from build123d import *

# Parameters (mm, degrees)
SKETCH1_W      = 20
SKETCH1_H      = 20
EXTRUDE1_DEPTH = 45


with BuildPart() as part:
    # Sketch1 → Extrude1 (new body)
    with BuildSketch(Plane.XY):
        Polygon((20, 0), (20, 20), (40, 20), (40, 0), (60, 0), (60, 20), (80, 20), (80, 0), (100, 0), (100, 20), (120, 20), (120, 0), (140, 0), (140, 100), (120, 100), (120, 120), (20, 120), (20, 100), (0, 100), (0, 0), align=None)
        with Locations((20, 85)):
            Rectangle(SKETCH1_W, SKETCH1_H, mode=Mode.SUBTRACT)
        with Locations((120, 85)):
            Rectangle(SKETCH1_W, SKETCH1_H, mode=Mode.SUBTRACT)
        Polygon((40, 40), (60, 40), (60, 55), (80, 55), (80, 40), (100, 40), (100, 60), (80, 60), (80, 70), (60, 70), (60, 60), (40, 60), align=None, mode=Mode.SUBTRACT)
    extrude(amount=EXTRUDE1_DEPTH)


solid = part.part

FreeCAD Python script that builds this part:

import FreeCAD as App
import Part
import Sketcher


def add_polygon(sketch, points):
    """Adds a closed chain of lines whose ends are joined by coincident constraints."""
    first, n = sketch.GeometryCount, len(points)
    for a, b in zip(points, points[1:] + points[:1]):
        sketch.addGeometry(Part.LineSegment(App.Vector(*a, 0), App.Vector(*b, 0)), False)
    for i in range(n):
        sketch.addConstraint(Sketcher.Constraint("Coincident", first + i, 2, first + (i + 1) % n, 1))

doc = App.newDocument("Part")
body = doc.addObject("PartDesign::Body", "Body")

sketch1 = body.newObject("Sketcher::SketchObject", "Sketch")
sketch1.AttachmentSupport = (doc.getObject("XY_Plane"), [""])
sketch1.MapMode = "FlatFace"
add_polygon(sketch1, [(20, 0), (20, 20), (40, 20), (40, 0), (60, 0), (60, 20), (80, 20), (80, 0), (100, 0), (100, 20), (120, 20), (120, 0), (140, 0), (140, 100), (120, 100), (120, 120), (20, 120), (20, 100), (0, 100), (0, 0)])
add_polygon(sketch1, [(60, 40), (40, 40), (40, 60), (60, 60), (60, 70), (80, 70), (80, 60), (100, 60), (100, 40), (80, 40), (80, 55), (60, 55)])
add_polygon(sketch1, [(30, 75), (10, 75), (10, 95), (30, 95)])
add_polygon(sketch1, [(130, 75), (110, 75), (110, 95), (130, 95)])
sketch1.addConstraint(Sketcher.Constraint("Vertical", 0))
sketch1.addConstraint(Sketcher.Constraint("Horizontal", 1))
sketch1.addConstraint(Sketcher.Constraint("Vertical", 2))
sketch1.addConstraint(Sketcher.Constraint("Horizontal", 3))
sketch1.addConstraint(Sketcher.Constraint("Vertical", 4))
sketch1.addConstraint(Sketcher.Constraint("Horizontal", 5))
sketch1.addConstraint(Sketcher.Constraint("Vertical", 6))
sketch1.addConstraint(Sketcher.Constraint("Horizontal", 7))
sketch1.addConstraint(Sketcher.Constraint("Vertical", 8))
sketch1.addConstraint(Sketcher.Constraint("Horizontal", 9))
sketch1.addConstraint(Sketcher.Constraint("Vertical", 10))
sketch1.addConstraint(Sketcher.Constraint("Horizontal", 11))
sketch1.addConstraint(Sketcher.Constraint("Vertical", 12))
sketch1.addConstraint(Sketcher.Constraint("Horizontal", 13))
sketch1.addConstraint(Sketcher.Constraint("Vertical", 14))
sketch1.addConstraint(Sketcher.Constraint("Horizontal", 15))
sketch1.addConstraint(Sketcher.Constraint("Vertical", 16))
sketch1.addConstraint(Sketcher.Constraint("Horizontal", 17))
sketch1.addConstraint(Sketcher.Constraint("Vertical", 18))
sketch1.addConstraint(Sketcher.Constraint("Horizontal", 19))
sketch1.addConstraint(Sketcher.Constraint("Horizontal", 20))
sketch1.addConstraint(Sketcher.Constraint("Vertical", 21))
sketch1.addConstraint(Sketcher.Constraint("Horizontal", 22))
sketch1.addConstraint(Sketcher.Constraint("Vertical", 23))
sketch1.addConstraint(Sketcher.Constraint("Horizontal", 24))
sketch1.addConstraint(Sketcher.Constraint("Vertical", 25))
sketch1.addConstraint(Sketcher.Constraint("Horizontal", 26))
sketch1.addConstraint(Sketcher.Constraint("Vertical", 27))
sketch1.addConstraint(Sketcher.Constraint("Horizontal", 28))
sketch1.addConstraint(Sketcher.Constraint("Vertical", 29))
sketch1.addConstraint(Sketcher.Constraint("Horizontal", 30))
sketch1.addConstraint(Sketcher.Constraint("Vertical", 31))
sketch1.addConstraint(Sketcher.Constraint("Horizontal", 32))
sketch1.addConstraint(Sketcher.Constraint("Vertical", 33))
sketch1.addConstraint(Sketcher.Constraint("Horizontal", 34))
sketch1.addConstraint(Sketcher.Constraint("Vertical", 35))
sketch1.addConstraint(Sketcher.Constraint("Horizontal", 36))
sketch1.addConstraint(Sketcher.Constraint("Vertical", 37))
sketch1.addConstraint(Sketcher.Constraint("Horizontal", 38))
sketch1.addConstraint(Sketcher.Constraint("Vertical", 39))
sketch1.addConstraint(Sketcher.Constraint("Coincident", 18, 2, -1, 1))
sketch1.addConstraint(Sketcher.Constraint("PointOnObject", 2, 2, -1))
sketch1.addConstraint(Sketcher.Constraint("PointOnObject", 6, 2, -1))
sketch1.addConstraint(Sketcher.Constraint("PointOnObject", 10, 2, -1))
sketch1.addConstraint(Sketcher.Constraint("Horizontal", 1, 2, 4, 2))
sketch1.addConstraint(Sketcher.Constraint("Horizontal", 5, 2, 8, 2))
sketch1.addConstraint(Sketcher.Constraint("Horizontal", 13, 2, 16, 2))
sketch1.addConstraint(Sketcher.Constraint("Horizontal", 22, 2, 25, 2))
sketch1.addConstraint(Sketcher.Constraint("Horizontal", 20, 2, 27, 2))
sketch1.addConstraint(Sketcher.Constraint("Horizontal", 35, 2, 36, 2))
sketch1.addConstraint(Sketcher.Constraint("Horizontal", 34, 2, 37, 2))
sketch1.addConstraint(Sketcher.Constraint("Vertical", 10, 2, 13, 2))
sketch1.addConstraint(Sketcher.Constraint("Vertical", 0, 2, 15, 2))
sketch1.addConstraint(Sketcher.Constraint("Vertical", 2, 2, 20, 2))
sketch1.addConstraint(Sketcher.Constraint("Vertical", 4, 2, 22, 2))
sketch1.addConstraint(Sketcher.Constraint("Vertical", 6, 2, 24, 2))
sketch1.addConstraint(Sketcher.Constraint("Vertical", 8, 2, 26, 2))
sketch1.addConstraint(Sketcher.Constraint("Vertical", 25, 2, 28, 2))
sketch1.addConstraint(Sketcher.Constraint("Vertical", 23, 2, 30, 2))
sketch1.addConstraint(Sketcher.Constraint("Equal", 1, 3))
sketch1.addConstraint(Sketcher.Constraint("Equal", 3, 5))
sketch1.addConstraint(Sketcher.Constraint("Equal", 5, 7))
sketch1.addConstraint(Sketcher.Constraint("Equal", 7, 9))
sketch1.addConstraint(Sketcher.Constraint("Equal", 9, 11))
sketch1.addConstraint(Sketcher.Constraint("Equal", 13, 17))
sketch1.addConstraint(Sketcher.Constraint("Equal", 30, 32))
sketch1.addConstraint(Sketcher.Constraint("Equal", 34, 36))
sketch1.addConstraint(Sketcher.Constraint("Equal", 38, 0))
sketch1.addConstraint(Sketcher.Constraint("Equal", 15, 12))
sketch1.addConstraint(Sketcher.Constraint("Equal", 10, 14))
sketch1.addConstraint(Sketcher.Constraint("Equal", 16, 21))
sketch1.addConstraint(Sketcher.Constraint("Equal", 27, 33))
sketch1.addConstraint(Sketcher.Constraint("DistanceX", 1, 1, 1, 2, 20.0))
sketch1.addConstraint(Sketcher.Constraint("DistanceY", 23, 1, 23, 2, 10.0))
sketch1.addConstraint(Sketcher.Constraint("DistanceY", 29, 1, 29, 2, 15.0))
sketch1.addConstraint(Sketcher.Constraint("DistanceY", -1, 1, 20, 2, 40.0))
sketch1.addConstraint(Sketcher.Constraint("DistanceX", -1, 1, 32, 2, 10.0))
sketch1.addConstraint(Sketcher.Constraint("DistanceY", -1, 1, 32, 2, 75.0))
sketch1.addConstraint(Sketcher.Constraint("DistanceX", -1, 1, 36, 2, 110.0))
pad1 = body.newObject("PartDesign::Pad", "Pad")
pad1.Profile = sketch1
pad1.Length = 45

doc.recompute()
